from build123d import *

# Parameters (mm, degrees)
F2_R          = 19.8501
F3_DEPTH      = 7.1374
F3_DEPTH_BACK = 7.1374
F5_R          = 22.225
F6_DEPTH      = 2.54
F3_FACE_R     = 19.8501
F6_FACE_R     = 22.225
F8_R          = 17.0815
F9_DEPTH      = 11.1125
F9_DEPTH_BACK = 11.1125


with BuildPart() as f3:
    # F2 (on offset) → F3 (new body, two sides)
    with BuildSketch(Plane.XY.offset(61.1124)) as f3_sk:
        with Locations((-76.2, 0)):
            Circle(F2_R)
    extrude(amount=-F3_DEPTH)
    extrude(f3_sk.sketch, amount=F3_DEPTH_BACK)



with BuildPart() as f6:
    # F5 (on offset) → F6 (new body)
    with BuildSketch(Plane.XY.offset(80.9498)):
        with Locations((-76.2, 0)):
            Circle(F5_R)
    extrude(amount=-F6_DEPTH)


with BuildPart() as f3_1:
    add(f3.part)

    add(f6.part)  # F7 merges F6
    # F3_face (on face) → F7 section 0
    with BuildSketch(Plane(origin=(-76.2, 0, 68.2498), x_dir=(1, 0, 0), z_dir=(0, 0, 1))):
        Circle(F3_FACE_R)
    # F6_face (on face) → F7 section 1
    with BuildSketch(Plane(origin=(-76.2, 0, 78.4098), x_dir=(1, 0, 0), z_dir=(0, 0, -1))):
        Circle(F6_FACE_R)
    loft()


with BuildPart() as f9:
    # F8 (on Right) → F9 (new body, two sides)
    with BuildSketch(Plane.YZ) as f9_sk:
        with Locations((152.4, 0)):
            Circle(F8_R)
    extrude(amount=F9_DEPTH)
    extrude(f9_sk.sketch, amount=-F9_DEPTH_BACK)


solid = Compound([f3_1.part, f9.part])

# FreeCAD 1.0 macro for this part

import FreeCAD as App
import Part
import Sketcher
from FreeCAD import Vector
Q = App.Units.Quantity

doc = App.newDocument("Part")
body = doc.addObject("PartDesign::Body", "Body")

# Sketch on XY plane
sketch1 = body.newObject("Sketcher::SketchObject", "Sketch")
sketch1.AttachmentSupport = (doc.getObject("XY_Plane"), [""])
sketch1.MapMode = "FlatFace"
sketch1.AttachmentOffset = App.Placement(Vector(0, 0, 2.406 * 25.4), App.Rotation())
sketch1.addGeometry(Part.Circle(Vector(-76, 0, 0), Vector(0, 0, 1), 20), False)
sketch1.addConstraint(Sketcher.Constraint("PointOnObject", 0, 3, -1))
sketch1.addConstraint(Sketcher.Constraint("Diameter", 0, Q("1.563 in")))
sketch1.addConstraint(Sketcher.Constraint("DistanceX", 0, 3, -1, 1, Q("3 in")))
pad1 = body.newObject("PartDesign::Pad", "Pad")
pad1.Profile = sketch1
pad1.Type = "TwoLengths"
pad1.Length = Q("0.281 in")
pad1.Length2 = Q("0.281 in")
pad1.Reversed = True
body2 = doc.addObject("PartDesign::Body", "Body001")

# Sketch on XY plane
sketch2 = body2.newObject("Sketcher::SketchObject", "Sketch001")
sketch2.AttachmentSupport = (doc.getObject("XY_Plane001"), [""])
sketch2.MapMode = "FlatFace"
sketch2.AttachmentOffset = App.Placement(Vector(0, 0, 3.187 * 25.4), App.Rotation())
sketch2.addGeometry(Part.Circle(Vector(-76, 0, 0), Vector(0, 0, 1), 22), False)
sketch2.addConstraint(Sketcher.Constraint("PointOnObject", 0, 3, -1))
sketch2.addConstraint(Sketcher.Constraint("Diameter", 0, Q("1.75 in")))
sketch2.addConstraint(Sketcher.Constraint("DistanceX", 0, 3, -1, 1, Q("3 in")))
pad2 = body2.newObject("PartDesign::Pad", "Pad001")
pad2.Profile = sketch2
pad2.Length = Q("0.1 in")
pad2.Reversed = True
body.AllowCompound = True
doc.recompute()

boolean = body.newObject("PartDesign::Boolean", "Boolean")
boolean.Type = "Fuse"
boolean.addObjects([body2])

# Sketch on XY plane
sketch3 = body.newObject("Sketcher::SketchObject", "Sketch002")
sketch3.AttachmentSupport = (doc.getObject("XY_Plane"), [""])
sketch3.MapMode = "FlatFace"
sketch3.AttachmentOffset = App.Placement(Vector(0, 0, 2.687 * 25.4), App.Rotation())
sketch3.addGeometry(Part.Circle(Vector(-76, 0, 0), Vector(0, 0, 1), 20), False)
sketch3.addConstraint(Sketcher.Constraint("PointOnObject", 0, 3, -1))
sketch3.addConstraint(Sketcher.Constraint("Diameter", 0, Q("1.563 in")))
sketch3.addConstraint(Sketcher.Constraint("DistanceX", 0, 3, -1, 1, Q("3 in")))

# Sketch on XY plane
sketch4 = body.newObject("Sketcher::SketchObject", "Sketch003")
sketch4.AttachmentSupport = (doc.getObject("XY_Plane"), [""])
sketch4.MapMode = "FlatFace"
sketch4.AttachmentOffset = App.Placement(Vector(0, 0, 3.087 * 25.4), App.Rotation())
sketch4.addGeometry(Part.Circle(Vector(-76, 0, 0), Vector(0, 0, 1), 22), False)
sketch4.addConstraint(Sketcher.Constraint("PointOnObject", 0, 3, -1))
sketch4.addConstraint(Sketcher.Constraint("Diameter", 0, Q("1.75 in")))
sketch4.addConstraint(Sketcher.Constraint("DistanceX", 0, 3, -1, 1, Q("3 in")))

additiveloft = body.newObject("PartDesign::AdditiveLoft", "AdditiveLoft")
additiveloft.Profile = sketch3
additiveloft.Sections = [sketch4]
body3 = doc.addObject("PartDesign::Body", "Body002")

# Sketch on YZ plane
sketch5 = body3.newObject("Sketcher::SketchObject", "Sketch004")
sketch5.AttachmentSupport = (doc.getObject("YZ_Plane002"), [""])
sketch5.MapMode = "FlatFace"
sketch5.addGeometry(Part.Circle(Vector(152, 0, 0), Vector(0, 0, 1), 17), False)
sketch5.addConstraint(Sketcher.Constraint("PointOnObject", 0, 3, -1))
sketch5.addConstraint(Sketcher.Constraint("Diameter", 0, Q("1.345 in")))
sketch5.addConstraint(Sketcher.Constraint("DistanceX", -1, 1, 0, 3, Q("6 in")))
pad3 = body3.newObject("PartDesign::Pad", "Pad002")
pad3.Profile = sketch5
pad3.Type = "TwoLengths"
pad3.Length = Q("0.4375 in")
pad3.Length2 = Q("0.4375 in")

doc.recompute()
